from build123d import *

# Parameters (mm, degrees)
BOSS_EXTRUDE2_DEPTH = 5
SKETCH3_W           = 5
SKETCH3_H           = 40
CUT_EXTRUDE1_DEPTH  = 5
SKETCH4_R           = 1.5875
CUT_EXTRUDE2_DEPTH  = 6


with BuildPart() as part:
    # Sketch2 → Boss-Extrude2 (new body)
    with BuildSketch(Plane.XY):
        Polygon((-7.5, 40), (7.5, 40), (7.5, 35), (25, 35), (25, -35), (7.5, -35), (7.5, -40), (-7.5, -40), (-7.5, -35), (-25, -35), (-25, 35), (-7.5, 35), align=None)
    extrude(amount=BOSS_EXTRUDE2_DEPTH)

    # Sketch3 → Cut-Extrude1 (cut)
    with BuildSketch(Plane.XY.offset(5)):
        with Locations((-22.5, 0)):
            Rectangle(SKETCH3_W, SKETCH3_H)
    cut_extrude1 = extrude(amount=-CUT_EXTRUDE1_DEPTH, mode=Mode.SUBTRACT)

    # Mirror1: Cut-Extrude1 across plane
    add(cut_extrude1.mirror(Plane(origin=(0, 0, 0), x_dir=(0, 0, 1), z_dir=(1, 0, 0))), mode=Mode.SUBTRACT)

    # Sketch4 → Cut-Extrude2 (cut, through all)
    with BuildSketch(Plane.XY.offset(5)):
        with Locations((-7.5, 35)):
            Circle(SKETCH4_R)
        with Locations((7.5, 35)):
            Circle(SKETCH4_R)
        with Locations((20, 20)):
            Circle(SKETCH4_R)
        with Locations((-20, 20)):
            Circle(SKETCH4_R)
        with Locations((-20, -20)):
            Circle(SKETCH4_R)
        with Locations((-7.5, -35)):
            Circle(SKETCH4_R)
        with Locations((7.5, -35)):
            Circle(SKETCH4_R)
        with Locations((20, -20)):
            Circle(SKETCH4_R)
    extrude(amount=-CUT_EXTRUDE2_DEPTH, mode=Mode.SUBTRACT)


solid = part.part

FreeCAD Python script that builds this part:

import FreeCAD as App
import Part
import Sketcher


def add_polygon(sketch, points):
    """Adds a closed chain of lines whose ends are joined by coincident constraints."""
    first, n = sketch.GeometryCount, len(points)
    for a, b in zip(points, points[1:] + points[:1]):
        sketch.addGeometry(Part.LineSegment(App.Vector(*a, 0), App.Vector(*b, 0)), False)
    for i in range(n):
        sketch.addConstraint(Sketcher.Constraint("Coincident", first + i, 2, first + (i + 1) % n, 1))

doc = App.newDocument("Part")
params = doc.addObject("Spreadsheet::Sheet", "Params")
for row, (alias, value) in enumerate([
    ("sketch1_width", "15 mm"),
    ("sketch1_height", "5 mm"),
    ("sketch1_height2", "70 mm"),
    ("sketch1_width2", "17.5 mm"),
    ("pad1_length", "5 mm"),
    ("sketch2_width", "5 mm"),
    ("sketch2_height", "40 mm"),
    ("pocket1_length", "5 mm"),
], start=1):
    params.set(f"A{row}", alias)
    params.set(f"B{row}", "=" + value)
    params.setAlias(f"B{row}", alias)

body = doc.addObject("PartDesign::Body", "Body")

sketch1 = doc.addObject("Sketcher::SketchObject", "Sketch")
body.addObject(sketch1)
sketch1.AttachmentSupport = (doc.XY_Plane, [""])
sketch1.MapMode = "FlatFace"
add_polygon(sketch1, [(8, 40), (-8, 40), (-8, 35), (-25, 35), (-25, -35), (-8, -35), (-8, -40), (8, -40), (8, -35), (25, -35), (25, 35), (8, 35)])
sketch1.addConstraint([
    Sketcher.Constraint("Horizontal", 0),
    Sketcher.Constraint("Vertical", 1),
    Sketcher.Constraint("Horizontal", 2),
    Sketcher.Constraint("Vertical", 3),
    Sketcher.Constraint("Horizontal", 4),
    Sketcher.Constraint("Vertical", 5),
    Sketcher.Constraint("Horizontal", 6),
    Sketcher.Constraint("Vertical", 7),
    Sketcher.Constraint("Horizontal", 8),
    Sketcher.Constraint("Vertical", 9),
    Sketcher.Constraint("Horizontal", 10),
    Sketcher.Constraint("Vertical", 11),
    Sketcher.Constraint("Symmetric", 0, 2, 6, 2, -1, 1),
    Sketcher.Constraint("Symmetric", 2, 2, 8, 2, -1, 1),
    Sketcher.Constraint("Symmetric", 4, 2, 10, 2, -1, 1),
    Sketcher.Constraint("Symmetric", 4, 2, 7, 2, -2),
    Sketcher.Constraint("DistanceX", 0, 2, 0, 1, 15.0),
    Sketcher.Constraint("DistanceY", 1, 2, 1, 1, 5.0),
    Sketcher.Constraint("DistanceY", 3, 2, 3, 1, 70.0),
    Sketcher.Constraint("DistanceX", 2, 2, 2, 1, 17.5),
])
sketch1.setExpression("Constraints[28]", "Params.sketch1_width")
sketch1.setExpression("Constraints[29]", "Params.sketch1_height")
sketch1.setExpression("Constraints[30]", "Params.sketch1_height2")
sketch1.setExpression("Constraints[31]", "Params.sketch1_width2")
pad1 = doc.addObject("PartDesign::Pad", "Pad")
body.addObject(pad1)
pad1.Profile = sketch1
pad1.setExpression("Length", "Params.pad1_length")

sketch2 = doc.addObject("Sketcher::SketchObject", "Sketch001")
body.addObject(sketch2)
sketch2.AttachmentSupport = (doc.XY_Plane, [""])
sketch2.MapMode = "FlatFace"
sketch2.AttachmentOffset = App.Placement(App.Vector(0, 0, 5), App.Rotation())
add_polygon(sketch2, [(-25, 20), (-25, -20), (-20, -20), (-20, 20)])
sketch2.addConstraint([
    Sketcher.Constraint("Vertical", 0),
    Sketcher.Constraint("Horizontal", 1),
    Sketcher.Constraint("Vertical", 2),
    Sketcher.Constraint("Horizontal", 3),
    Sketcher.Constraint("DistanceX", 1, 1, 1, 2, 5.0),
    Sketcher.Constraint("DistanceY", 0, 2, 0, 1, 40.0),
    Sketcher.Constraint("DistanceX", 0, 2, -1, 1, 25.0),
    Sketcher.Constraint("DistanceY", 0, 2, -1, 1, 20.0),
])
sketch2.setExpression("Constraints[8]", "Params.sketch2_width")
sketch2.setExpression("Constraints[9]", "Params.sketch2_height")
pocket1 = doc.addObject("PartDesign::Pocket", "Pocket")
body.addObject(pocket1)
pocket1.Profile = sketch2
pocket1.setExpression("Length", "Params.pocket1_length")
doc.recompute()

mirrored = doc.addObject("PartDesign::Mirrored", "Mirrored")
body.addObject(mirrored)
mirrored.Originals = [pocket1]
mirrored.MirrorPlane = (doc.YZ_Plane, [""])
body.Tip = mirrored

sketch3 = doc.addObject("Sketcher::SketchObject", "Sketch002")
body.addObject(sketch3)
sketch3.AttachmentSupport = (doc.XY_Plane, [""])
sketch3.MapMode = "FlatFace"
sketch3.AttachmentOffset = App.Placement(App.Vector(0, 0, 5), App.Rotation())
sketch3.addGeometry([
    Part.Circle(App.Vector(-7.5, 35, 0), App.Vector(0, 0, 1), 1.6),
    Part.Circle(App.Vector(7.5, 35, 0), App.Vector(0, 0, 1), 1.6),
    Part.Circle(App.Vector(20, 20, 0), App.Vector(0, 0, 1), 1.6),
    Part.Circle(App.Vector(-20, 20, 0), App.Vector(0, 0, 1), 1.6),
    Part.Circle(App.Vector(-20, -20, 0), App.Vector(0, 0, 1), 1.6),
    Part.Circle(App.Vector(-7.5, -35, 0), App.Vector(0, 0, 1), 1.6),
    Part.Circle(App.Vector(7.5, -35, 0), App.Vector(0, 0, 1), 1.6),
    Part.Circle(App.Vector(20, -20, 0), App.Vector(0, 0, 1), 1.6),
], False)
sketch3.addConstraint([
    Sketcher.Constraint("Equal", 0, 1),
    Sketcher.Constraint("Equal", 1, 2),
    Sketcher.Constraint("Equal", 2, 3),
    Sketcher.Constraint("Equal", 3, 4),
    Sketcher.Constraint("Equal", 4, 5),
    Sketcher.Constraint("Equal", 5, 6),
    Sketcher.Constraint("Equal", 6, 7),
    Sketcher.Constraint("Symmetric", 2, 3, 4, 3, -1, 1),
    Sketcher.Constraint("Symmetric", 1, 3, 5, 3, -1, 1),
    Sketcher.Constraint("Symmetric", 0, 3, 6, 3, -1, 1),
    Sketcher.Constraint("Symmetric", 3, 3, 7, 3, -1, 1),
    Sketcher.Constraint("Symmetric", 0, 3, 1, 3, -2),
    Sketcher.Constraint("Symmetric", 2, 3, 3, 3, -2),
    Sketcher.Constraint("Diameter", 0, 3.175),
    Sketcher.Constraint("DistanceY", -1, 1, 0, 3, 35.0),
    Sketcher.Constraint("DistanceX", -1, 1, 2, 3, 20.0),
    Sketcher.Constraint("DistanceY", -1, 1, 2, 3, 20.0),
    Sketcher.Constraint("DistanceX", 0, 3, 1, 3, 15.0),
])
pocket2 = doc.addObject("PartDesign::Pocket", "Pocket001")
body.addObject(pocket2)
pocket2.Profile = sketch3
pocket2.Type = "ThroughAll"

doc.recompute()
